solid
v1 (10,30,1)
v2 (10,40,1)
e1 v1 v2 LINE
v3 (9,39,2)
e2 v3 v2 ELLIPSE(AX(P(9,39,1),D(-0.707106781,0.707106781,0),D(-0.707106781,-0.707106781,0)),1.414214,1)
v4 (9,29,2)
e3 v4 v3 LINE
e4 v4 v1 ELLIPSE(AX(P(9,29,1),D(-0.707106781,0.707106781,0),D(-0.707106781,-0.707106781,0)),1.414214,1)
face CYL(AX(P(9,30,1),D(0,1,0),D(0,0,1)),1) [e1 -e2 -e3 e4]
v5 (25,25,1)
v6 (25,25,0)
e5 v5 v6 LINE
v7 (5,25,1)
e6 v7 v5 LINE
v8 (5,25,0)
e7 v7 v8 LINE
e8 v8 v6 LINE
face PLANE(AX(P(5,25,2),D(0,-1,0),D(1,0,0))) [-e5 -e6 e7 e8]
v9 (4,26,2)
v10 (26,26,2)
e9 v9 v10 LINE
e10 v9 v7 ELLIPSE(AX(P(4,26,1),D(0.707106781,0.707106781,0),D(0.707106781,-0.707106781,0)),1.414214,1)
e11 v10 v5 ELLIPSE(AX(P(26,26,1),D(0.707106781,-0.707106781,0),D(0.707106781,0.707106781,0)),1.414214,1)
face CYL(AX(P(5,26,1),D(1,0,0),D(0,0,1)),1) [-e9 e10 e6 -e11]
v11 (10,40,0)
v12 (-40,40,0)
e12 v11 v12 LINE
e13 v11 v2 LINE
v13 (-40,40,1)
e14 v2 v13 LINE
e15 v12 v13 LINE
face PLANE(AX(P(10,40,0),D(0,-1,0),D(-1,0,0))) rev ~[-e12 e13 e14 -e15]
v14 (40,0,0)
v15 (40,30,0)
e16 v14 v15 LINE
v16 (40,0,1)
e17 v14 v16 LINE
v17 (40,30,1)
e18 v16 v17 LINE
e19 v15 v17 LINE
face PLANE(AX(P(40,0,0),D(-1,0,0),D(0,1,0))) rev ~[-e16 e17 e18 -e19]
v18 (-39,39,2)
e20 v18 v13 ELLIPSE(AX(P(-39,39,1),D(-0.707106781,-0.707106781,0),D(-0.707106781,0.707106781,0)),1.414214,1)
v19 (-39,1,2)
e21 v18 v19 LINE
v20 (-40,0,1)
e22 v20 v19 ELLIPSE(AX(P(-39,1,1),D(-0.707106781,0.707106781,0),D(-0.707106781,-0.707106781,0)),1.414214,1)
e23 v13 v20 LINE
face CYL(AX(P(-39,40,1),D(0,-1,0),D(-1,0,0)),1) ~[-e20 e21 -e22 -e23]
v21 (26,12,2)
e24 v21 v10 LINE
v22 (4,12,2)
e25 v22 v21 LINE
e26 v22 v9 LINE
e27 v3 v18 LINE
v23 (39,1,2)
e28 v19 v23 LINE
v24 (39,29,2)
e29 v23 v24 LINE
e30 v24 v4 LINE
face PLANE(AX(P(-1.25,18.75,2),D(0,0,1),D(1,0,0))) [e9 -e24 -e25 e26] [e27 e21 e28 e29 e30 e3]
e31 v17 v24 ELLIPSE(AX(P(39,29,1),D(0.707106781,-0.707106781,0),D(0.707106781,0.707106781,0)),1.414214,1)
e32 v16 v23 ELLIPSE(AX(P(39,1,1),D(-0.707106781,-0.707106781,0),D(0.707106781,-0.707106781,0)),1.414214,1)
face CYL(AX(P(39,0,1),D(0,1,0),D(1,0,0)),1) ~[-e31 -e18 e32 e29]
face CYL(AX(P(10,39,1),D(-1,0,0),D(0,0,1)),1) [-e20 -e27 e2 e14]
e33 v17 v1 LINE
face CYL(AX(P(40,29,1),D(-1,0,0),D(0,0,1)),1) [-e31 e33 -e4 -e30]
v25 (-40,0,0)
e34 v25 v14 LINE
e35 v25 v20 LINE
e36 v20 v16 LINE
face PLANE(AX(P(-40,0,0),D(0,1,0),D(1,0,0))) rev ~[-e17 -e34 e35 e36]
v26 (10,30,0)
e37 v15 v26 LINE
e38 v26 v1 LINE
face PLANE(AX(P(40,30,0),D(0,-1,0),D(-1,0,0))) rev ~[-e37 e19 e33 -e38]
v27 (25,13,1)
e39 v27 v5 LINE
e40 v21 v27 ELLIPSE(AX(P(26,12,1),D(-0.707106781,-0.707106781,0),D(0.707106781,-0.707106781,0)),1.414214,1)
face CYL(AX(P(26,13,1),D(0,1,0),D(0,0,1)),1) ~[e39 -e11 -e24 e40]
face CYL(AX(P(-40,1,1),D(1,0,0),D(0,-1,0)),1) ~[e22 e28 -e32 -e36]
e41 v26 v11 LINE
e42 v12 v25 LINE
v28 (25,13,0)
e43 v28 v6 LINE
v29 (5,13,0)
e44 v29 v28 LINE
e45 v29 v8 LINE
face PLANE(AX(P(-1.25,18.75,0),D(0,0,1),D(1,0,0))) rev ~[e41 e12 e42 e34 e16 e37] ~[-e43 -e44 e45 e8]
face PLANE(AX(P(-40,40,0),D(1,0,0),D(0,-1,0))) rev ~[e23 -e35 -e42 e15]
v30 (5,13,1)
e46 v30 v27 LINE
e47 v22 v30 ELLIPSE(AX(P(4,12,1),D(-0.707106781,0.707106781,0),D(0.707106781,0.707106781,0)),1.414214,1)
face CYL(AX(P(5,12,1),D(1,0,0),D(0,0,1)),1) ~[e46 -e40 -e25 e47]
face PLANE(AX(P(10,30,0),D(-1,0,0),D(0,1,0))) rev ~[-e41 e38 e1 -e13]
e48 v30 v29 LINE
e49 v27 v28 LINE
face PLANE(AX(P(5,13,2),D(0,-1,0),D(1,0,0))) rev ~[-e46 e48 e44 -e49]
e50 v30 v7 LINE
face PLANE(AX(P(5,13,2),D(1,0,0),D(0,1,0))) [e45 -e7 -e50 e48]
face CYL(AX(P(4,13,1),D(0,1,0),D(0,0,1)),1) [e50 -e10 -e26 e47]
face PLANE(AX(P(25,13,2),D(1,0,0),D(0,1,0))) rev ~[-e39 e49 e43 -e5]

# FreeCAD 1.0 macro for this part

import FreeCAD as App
import Part
import Sketcher

V = App.Vector


def edges_at(feature, points):
    """Names of the edges that pass closest to the given points."""
    edges = feature.Shape.Edges
    near = lambda p: min(range(len(edges)), key=lambda i: edges[i].distToShape(Part.Vertex(*p))[0])
    return sorted({f"Edge{near(p) + 1}" for p in points})

doc = App.newDocument("Part")
params = doc.addObject("Spreadsheet::Sheet", "Params")
for row, (alias, value) in enumerate([
    ("sketch1_width", "80 mm"),
    ("sketch1_width2", "30 mm"),
    ("sketch1_height", "10 mm"),
    ("pad1_length", "2 mm"),
    ("sketch2_width", "20 mm"),
    ("sketch2_height", "12 mm"),
    ("pocket1_length", "5 mm"),
    ("fillet_radius", "1 mm"),
], start=1):
    params.set(f"A{row}", alias)
    params.set(f"B{row}", "=" + value)
    params.setAlias(f"B{row}", alias)

body = doc.addObject("PartDesign::Body", "Body")

sketch1 = body.newObject("Sketcher::SketchObject", "Sketch")
sketch1.AttachmentSupport = (doc.getObject("XY_Plane"), [""])
sketch1.MapMode = "FlatFace"
sketch1.addGeometry([
    Part.LineSegment(V(-40, 0, 0), V(40, 0, 0)),
    Part.LineSegment(V(40, 0, 0), V(40, 30, 0)),
    Part.LineSegment(V(40, 30, 0), V(10, 30, 0)),
    Part.LineSegment(V(10, 30, 0), V(10, 40, 0)),
    Part.LineSegment(V(10, 40, 0), V(-40, 40, 0)),
    Part.LineSegment(V(-40, 40, 0), V(-40, 0, 0)),
], False)
sketch1.addConstraint([
    Sketcher.Constraint("Coincident", 0, 2, 1, 1),
    Sketcher.Constraint("Coincident", 1, 2, 2, 1),
    Sketcher.Constraint("Coincident", 2, 2, 3, 1),
    Sketcher.Constraint("Coincident", 3, 2, 4, 1),
    Sketcher.Constraint("Coincident", 4, 2, 5, 1),
    Sketcher.Constraint("Coincident", 5, 2, 0, 1),
    Sketcher.Constraint("Horizontal", 0),
    Sketcher.Constraint("Vertical", 1),
    Sketcher.Constraint("Horizontal", 2),
    Sketcher.Constraint("Vertical", 3),
    Sketcher.Constraint("Horizontal", 4),
    Sketcher.Constraint("Vertical", 5),
    Sketcher.Constraint("Symmetric", 0, 2, 5, 2, -1, 1),
    Sketcher.Constraint("Equal", 2, 1),
    Sketcher.Constraint("DistanceX", 0, 1, 0, 2, 80.0),
    Sketcher.Constraint("DistanceX", 2, 2, 2, 1, 30.0),
    Sketcher.Constraint("DistanceY", 3, 1, 3, 2, 10.0),
])
sketch1.setExpression("Constraints[14]", "Params.sketch1_width")
sketch1.setExpression("Constraints[15]", "Params.sketch1_width2")
sketch1.setExpression("Constraints[16]", "Params.sketch1_height")
pad1 = body.newObject("PartDesign::Pad", "Pad")
pad1.Profile = sketch1
pad1.setExpression("Length", "Params.pad1_length")

sketch2 = body.newObject("Sketcher::SketchObject", "Sketch001")
sketch2.AttachmentSupport = (doc.getObject("XY_Plane"), [""])
sketch2.MapMode = "FlatFace"
sketch2.AttachmentOffset = App.Placement(V(0, 0, 2), App.Rotation())
sketch2.addGeometry([
    Part.LineSegment(V(5, 25, 0), V(5, 13, 0)),
    Part.LineSegment(V(5, 13, 0), V(25, 13, 0)),
    Part.LineSegment(V(25, 13, 0), V(25, 25, 0)),
    Part.LineSegment(V(25, 25, 0), V(5, 25, 0)),
], False)
sketch2.addConstraint([
    Sketcher.Constraint("Coincident", 0, 2, 1, 1),
    Sketcher.Constraint("Coincident", 1, 2, 2, 1),
    Sketcher.Constraint("Coincident", 2, 2, 3, 1),
    Sketcher.Constraint("Coincident", 3, 2, 0, 1),
    Sketcher.Constraint("Vertical", 0),
    Sketcher.Constraint("Horizontal", 1),
    Sketcher.Constraint("Vertical", 2),
    Sketcher.Constraint("Horizontal", 3),
    Sketcher.Constraint("DistanceX", 1, 1, 1, 2, 20.0),
    Sketcher.Constraint("DistanceY", 0, 2, 0, 1, 12.0),
    Sketcher.Constraint("DistanceX", -1, 1, 0, 2, 5.0),
    Sketcher.Constraint("DistanceY", -1, 1, 0, 2, 13.0),
])
sketch2.setExpression("Constraints[8]", "Params.sketch2_width")
sketch2.setExpression("Constraints[9]", "Params.sketch2_height")
pocket1 = body.newObject("PartDesign::Pocket", "Pocket")
pocket1.Profile = sketch2
pocket1.setExpression("Length", "Params.pocket1_length")
doc.recompute()

fillet = body.newObject("PartDesign::Fillet", "Fillet")
fillet.Base = (pocket1, edges_at(pocket1, [
    (-15, 40, 2),
    (-40, 20, 2),
    (0, 0, 2),
    (40, 15, 2),
    (25, 30, 2),
    (10, 35, 2),
    (15, 25, 2),
    (5, 19, 2),
    (15, 13, 2),
    (25, 19, 2),
]))
fillet.setExpression("Radius", "Params.fillet_radius")

doc.recompute()
